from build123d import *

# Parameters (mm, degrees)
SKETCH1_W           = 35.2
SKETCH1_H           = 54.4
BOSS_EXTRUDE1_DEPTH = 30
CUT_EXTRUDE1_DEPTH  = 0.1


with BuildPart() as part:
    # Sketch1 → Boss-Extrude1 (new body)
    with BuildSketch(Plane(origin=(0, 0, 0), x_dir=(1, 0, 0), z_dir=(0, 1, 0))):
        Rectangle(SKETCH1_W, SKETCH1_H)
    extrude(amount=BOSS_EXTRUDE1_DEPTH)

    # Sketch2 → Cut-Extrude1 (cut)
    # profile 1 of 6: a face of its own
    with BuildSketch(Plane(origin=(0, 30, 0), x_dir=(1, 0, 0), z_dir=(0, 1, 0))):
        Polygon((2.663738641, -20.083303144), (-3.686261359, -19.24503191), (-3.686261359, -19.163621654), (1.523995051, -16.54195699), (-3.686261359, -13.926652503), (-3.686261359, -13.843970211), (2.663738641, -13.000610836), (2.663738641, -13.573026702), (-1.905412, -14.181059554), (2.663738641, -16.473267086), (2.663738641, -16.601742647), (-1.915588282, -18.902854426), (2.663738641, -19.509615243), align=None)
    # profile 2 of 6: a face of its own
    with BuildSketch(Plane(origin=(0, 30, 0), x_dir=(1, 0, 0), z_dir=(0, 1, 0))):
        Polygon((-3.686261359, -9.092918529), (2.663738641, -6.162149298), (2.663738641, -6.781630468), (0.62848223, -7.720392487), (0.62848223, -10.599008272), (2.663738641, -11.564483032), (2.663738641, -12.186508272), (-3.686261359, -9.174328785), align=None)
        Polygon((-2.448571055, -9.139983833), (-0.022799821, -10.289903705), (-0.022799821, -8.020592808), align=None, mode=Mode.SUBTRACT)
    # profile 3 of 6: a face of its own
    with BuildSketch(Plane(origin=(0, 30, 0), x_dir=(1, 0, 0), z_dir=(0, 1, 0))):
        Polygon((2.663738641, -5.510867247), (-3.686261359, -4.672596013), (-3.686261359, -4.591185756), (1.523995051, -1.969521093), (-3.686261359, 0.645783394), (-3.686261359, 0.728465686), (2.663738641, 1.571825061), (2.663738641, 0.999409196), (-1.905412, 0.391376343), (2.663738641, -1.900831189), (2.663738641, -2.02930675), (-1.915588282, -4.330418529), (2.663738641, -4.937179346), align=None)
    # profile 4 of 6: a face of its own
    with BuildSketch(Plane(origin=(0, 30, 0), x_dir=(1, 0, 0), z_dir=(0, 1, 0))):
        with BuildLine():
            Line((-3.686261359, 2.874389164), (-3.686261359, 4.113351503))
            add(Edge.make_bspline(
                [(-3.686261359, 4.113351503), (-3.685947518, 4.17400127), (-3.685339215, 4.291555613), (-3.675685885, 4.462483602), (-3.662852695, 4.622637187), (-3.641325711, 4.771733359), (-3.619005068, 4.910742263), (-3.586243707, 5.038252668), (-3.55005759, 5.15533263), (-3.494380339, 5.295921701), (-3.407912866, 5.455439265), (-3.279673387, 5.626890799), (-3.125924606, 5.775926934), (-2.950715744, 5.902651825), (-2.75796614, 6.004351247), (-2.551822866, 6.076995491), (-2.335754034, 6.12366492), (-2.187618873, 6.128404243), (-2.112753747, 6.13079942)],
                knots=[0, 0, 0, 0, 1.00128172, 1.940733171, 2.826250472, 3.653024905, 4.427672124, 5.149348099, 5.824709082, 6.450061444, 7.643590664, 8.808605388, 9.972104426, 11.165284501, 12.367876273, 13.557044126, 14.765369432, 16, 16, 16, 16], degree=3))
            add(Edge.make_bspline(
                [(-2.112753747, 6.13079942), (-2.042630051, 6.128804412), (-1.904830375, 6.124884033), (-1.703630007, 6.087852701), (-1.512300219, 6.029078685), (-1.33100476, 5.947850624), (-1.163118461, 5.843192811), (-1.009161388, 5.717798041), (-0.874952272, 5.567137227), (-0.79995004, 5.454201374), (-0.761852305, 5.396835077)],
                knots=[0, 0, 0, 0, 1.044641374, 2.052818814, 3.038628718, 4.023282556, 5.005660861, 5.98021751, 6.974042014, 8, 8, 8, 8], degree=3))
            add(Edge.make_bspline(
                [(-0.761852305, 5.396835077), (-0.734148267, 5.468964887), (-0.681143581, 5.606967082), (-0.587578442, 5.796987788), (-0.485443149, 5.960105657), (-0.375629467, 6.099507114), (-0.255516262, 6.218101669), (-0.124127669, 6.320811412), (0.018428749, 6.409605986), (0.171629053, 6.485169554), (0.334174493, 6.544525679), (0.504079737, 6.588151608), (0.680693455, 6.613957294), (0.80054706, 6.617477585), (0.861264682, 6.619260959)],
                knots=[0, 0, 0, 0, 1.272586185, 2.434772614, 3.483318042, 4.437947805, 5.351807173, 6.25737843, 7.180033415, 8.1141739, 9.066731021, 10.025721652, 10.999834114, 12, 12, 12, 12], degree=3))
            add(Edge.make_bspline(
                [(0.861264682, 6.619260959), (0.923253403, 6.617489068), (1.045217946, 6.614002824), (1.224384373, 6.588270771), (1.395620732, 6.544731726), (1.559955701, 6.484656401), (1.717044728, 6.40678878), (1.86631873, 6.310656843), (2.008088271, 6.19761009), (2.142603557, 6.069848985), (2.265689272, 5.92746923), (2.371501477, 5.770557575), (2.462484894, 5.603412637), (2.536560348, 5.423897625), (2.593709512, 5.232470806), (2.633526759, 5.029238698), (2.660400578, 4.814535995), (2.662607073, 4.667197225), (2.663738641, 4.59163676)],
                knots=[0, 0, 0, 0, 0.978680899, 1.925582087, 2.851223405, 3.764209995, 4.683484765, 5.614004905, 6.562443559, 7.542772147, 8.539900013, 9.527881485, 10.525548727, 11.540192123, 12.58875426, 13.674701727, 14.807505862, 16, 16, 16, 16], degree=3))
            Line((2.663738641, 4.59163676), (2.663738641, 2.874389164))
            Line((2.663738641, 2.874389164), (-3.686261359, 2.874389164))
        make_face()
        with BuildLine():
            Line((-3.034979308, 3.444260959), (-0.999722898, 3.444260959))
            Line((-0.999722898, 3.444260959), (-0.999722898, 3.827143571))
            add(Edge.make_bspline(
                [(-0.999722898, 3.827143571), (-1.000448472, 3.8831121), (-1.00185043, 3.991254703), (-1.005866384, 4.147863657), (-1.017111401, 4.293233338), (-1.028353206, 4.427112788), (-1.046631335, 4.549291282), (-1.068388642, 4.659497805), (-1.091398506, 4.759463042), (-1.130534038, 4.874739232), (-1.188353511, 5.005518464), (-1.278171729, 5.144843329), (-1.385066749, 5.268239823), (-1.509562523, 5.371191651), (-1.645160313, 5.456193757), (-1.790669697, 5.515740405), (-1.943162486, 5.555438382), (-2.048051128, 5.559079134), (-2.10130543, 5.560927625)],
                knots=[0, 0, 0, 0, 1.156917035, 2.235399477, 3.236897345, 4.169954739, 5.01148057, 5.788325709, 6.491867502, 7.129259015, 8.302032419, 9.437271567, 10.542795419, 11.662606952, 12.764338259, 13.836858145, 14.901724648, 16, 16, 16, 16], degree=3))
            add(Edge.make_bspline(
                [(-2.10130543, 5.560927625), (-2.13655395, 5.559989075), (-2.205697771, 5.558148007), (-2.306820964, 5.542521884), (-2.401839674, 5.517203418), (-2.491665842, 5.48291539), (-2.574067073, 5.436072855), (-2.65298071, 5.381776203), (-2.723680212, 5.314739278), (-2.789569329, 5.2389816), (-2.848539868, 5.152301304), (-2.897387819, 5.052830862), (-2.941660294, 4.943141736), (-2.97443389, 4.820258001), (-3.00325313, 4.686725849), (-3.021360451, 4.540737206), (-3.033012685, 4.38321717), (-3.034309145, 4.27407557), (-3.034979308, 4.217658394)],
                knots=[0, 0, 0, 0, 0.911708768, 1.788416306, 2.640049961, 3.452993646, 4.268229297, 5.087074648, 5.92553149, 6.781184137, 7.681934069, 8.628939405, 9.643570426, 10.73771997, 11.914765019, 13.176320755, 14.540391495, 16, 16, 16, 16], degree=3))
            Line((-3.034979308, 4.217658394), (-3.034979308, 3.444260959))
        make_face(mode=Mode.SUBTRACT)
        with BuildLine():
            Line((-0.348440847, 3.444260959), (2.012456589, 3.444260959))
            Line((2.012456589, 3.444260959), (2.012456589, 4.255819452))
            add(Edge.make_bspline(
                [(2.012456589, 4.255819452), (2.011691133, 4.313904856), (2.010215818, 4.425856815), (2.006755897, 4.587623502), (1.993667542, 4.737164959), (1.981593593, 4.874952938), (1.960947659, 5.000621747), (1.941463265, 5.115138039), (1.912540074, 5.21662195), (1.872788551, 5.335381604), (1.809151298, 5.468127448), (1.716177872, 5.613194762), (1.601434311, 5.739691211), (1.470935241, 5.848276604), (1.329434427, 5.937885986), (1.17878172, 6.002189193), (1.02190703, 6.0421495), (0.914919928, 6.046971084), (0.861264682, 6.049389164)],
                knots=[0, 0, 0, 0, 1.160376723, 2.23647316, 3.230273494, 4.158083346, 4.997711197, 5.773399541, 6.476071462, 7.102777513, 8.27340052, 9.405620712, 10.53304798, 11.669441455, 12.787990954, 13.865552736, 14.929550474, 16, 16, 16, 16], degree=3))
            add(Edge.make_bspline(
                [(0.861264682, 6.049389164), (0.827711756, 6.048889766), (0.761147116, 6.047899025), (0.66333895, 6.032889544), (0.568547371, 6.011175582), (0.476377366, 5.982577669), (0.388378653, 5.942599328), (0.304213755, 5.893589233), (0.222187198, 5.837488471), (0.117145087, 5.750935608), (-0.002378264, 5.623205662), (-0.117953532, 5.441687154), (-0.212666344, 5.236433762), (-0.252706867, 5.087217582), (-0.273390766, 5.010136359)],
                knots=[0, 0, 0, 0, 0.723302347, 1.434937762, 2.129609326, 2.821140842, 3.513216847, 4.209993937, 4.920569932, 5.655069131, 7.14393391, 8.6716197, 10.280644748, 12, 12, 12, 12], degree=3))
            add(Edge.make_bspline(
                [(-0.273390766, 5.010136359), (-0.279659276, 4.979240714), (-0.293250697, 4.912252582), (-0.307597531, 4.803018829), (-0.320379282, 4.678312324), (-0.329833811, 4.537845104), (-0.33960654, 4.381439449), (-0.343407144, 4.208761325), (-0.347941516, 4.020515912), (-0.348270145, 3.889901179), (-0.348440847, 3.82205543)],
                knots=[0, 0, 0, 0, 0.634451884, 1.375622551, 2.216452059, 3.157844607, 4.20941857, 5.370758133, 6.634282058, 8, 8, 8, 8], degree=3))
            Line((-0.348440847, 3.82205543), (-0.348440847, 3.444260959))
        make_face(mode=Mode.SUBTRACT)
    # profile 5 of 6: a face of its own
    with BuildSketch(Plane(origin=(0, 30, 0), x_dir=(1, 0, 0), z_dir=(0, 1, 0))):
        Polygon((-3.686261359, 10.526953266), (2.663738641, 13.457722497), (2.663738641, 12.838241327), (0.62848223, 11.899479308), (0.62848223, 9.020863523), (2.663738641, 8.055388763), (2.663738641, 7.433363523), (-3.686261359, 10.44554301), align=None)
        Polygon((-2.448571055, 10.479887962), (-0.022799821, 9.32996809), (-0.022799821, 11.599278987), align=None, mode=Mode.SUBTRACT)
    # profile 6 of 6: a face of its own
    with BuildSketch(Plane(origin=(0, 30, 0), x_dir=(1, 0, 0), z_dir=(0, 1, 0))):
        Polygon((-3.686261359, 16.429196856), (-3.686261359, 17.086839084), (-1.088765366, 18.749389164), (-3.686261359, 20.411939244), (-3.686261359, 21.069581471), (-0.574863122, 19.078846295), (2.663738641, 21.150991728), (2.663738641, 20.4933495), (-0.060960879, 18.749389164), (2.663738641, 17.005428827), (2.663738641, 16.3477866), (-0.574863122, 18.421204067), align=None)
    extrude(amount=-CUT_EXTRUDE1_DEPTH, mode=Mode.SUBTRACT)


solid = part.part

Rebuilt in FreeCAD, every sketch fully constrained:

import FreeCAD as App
import Part
import Sketcher

V = App.Vector
Q = App.Units.Quantity


def add_polygon(sketch, points):
    """Adds a closed chain of lines whose ends are joined by coincident constraints."""
    first, n = sketch.GeometryCount, len(points)
    for a, b in zip(points, points[1:] + points[:1]):
        sketch.addGeometry(Part.LineSegment(App.Vector(*a, 0), App.Vector(*b, 0)), False)
    for i in range(n):
        sketch.addConstraint(Sketcher.Constraint("Coincident", first + i, 2, first + (i + 1) % n, 1))

doc = App.newDocument("Part")
body = doc.addObject("PartDesign::Body", "Body")

# Sketch on XZ plane
sketch1 = body.newObject("Sketcher::SketchObject", "Sketch")
sketch1.AttachmentSupport = (doc.getObject("XZ_Plane"), [""])
sketch1.MapMode = "FlatFace"
add_polygon(sketch1, [(-18, -27), (-18, 27), (18, 27), (18, -27)])  # lines 0-3
sketch1.addConstraint(Sketcher.Constraint("Vertical", 0))
sketch1.addConstraint(Sketcher.Constraint("Horizontal", 1))
sketch1.addConstraint(Sketcher.Constraint("Vertical", 2))
sketch1.addConstraint(Sketcher.Constraint("Horizontal", 3))
sketch1.addConstraint(Sketcher.Constraint("Symmetric", 0, 2, 2, 2, -1, 1))
sketch1.addConstraint(Sketcher.Constraint("DistanceX", 1, 1, 1, 2, Q("35.2 mm")))
sketch1.addConstraint(Sketcher.Constraint("DistanceY", 0, 1, 0, 2, Q("54.4 mm")))
pad1 = body.newObject("PartDesign::Pad", "Pad")
pad1.Profile = sketch1
pad1.Length = 30
pad1.Reversed = True

# Sketch on XZ plane
sketch2 = body.newObject("Sketcher::SketchObject", "Sketch001")
sketch2.AttachmentSupport = (doc.getObject("XZ_Plane"), [""])
sketch2.MapMode = "FlatFace"
sketch2.AttachmentOffset = App.Placement(V(0, 0, -30), App.Rotation())
add_polygon(sketch2, [(-3.686261, 19.245032), (2.663739, 20.083303), (2.663739, 19.509615), (-1.915588, 18.902854), (2.663739, 16.601743), (2.663739, 16.473267), (-1.905412, 14.18106), (2.663739, 13.573027), (2.663739, 13.000611), (-3.686261, 13.84397), (-3.686261, 13.926653), (1.523995, 16.541957), (-3.686261, 19.163622)])  # lines 0-12
add_polygon(sketch2, [(2.663739, 6.162149), (-3.686261, 9.092919), (-3.686261, 9.174329), (2.663739, 12.186508), (2.663739, 11.564483), (0.628482, 10.599008), (0.628482, 7.720392), (2.663739, 6.78163)])  # lines 13-20
add_polygon(sketch2, [(-2.448571, 9.139984), (-0.0228, 8.020593), (-0.0228, 10.289904)])  # lines 21-23
add_polygon(sketch2, [(-3.686261, 4.672596), (2.663739, 5.510867), (2.663739, 4.937179), (-1.915588, 4.330419), (2.663739, 2.029307), (2.663739, 1.900831), (-1.905412, -0.391376), (2.663739, -0.999409), (2.663739, -1.571825), (-3.686261, -0.728466), (-3.686261, -0.645783), (1.523995, 1.969521), (-3.686261, 4.591186)])  # lines 24-36
sketch2.addGeometry(Part.LineSegment(V(-3.686261, -4.113352, 0), V(-3.686261, -2.874389, 0)), False)  # 37
sketch2.addGeometry(Part.LineSegment(V(-3.686261, -2.874389, 0), V(2.663739, -2.874389, 0)), False)  # 38
sketch2.addGeometry(Part.LineSegment(V(2.663739, -2.874389, 0), V(2.663739, -4.591637, 0)), False)  # 39
sketch2.addGeometry(Part.BSplineCurve([V(0.861265, -6.619261, 0), V(0.923253, -6.617489, 0), V(1.045218, -6.614003, 0), V(1.224384, -6.588271, 0), V(1.395621, -6.544732, 0), V(1.559956, -6.484656, 0), V(1.717045, -6.406789, 0), V(1.866319, -6.310657, 0), V(2.008088, -6.19761, 0), V(2.142604, -6.069849, 0), V(2.265689, -5.927469, 0), V(2.371501, -5.770558, 0), V(2.462485, -5.603413, 0), V(2.53656, -5.423898, 0), V(2.59371, -5.232471, 0), V(2.633527, -5.029239, 0), V(2.660401, -4.814536, 0), V(2.662607, -4.667197, 0), V(2.663739, -4.591637, 0)], [4, 1, 1, 1, 1, 1, 1, 1, 1, 1, 1, 1, 1, 1, 1, 1, 4], [0, 0.978680899, 1.925582087, 2.851223405, 3.764209995, 4.683484765, 5.614004905, 6.562443559, 7.542772147, 8.539900013, 9.527881485, 10.525548727, 11.540192123, 12.58875426, 13.674701727, 14.807505862, 16], False, 3, [1, 1, 1, 1, 1, 1, 1, 1, 1, 1, 1, 1, 1, 1, 1, 1, 1, 1, 1], False), False)  # 40
sketch2.addGeometry(Part.BSplineCurve([V(-0.761852, -5.396835, 0), V(-0.734148, -5.468965, 0), V(-0.681144, -5.606967, 0), V(-0.587578, -5.796988, 0), V(-0.485443, -5.960106, 0), V(-0.375629, -6.099507, 0), V(-0.255516, -6.218102, 0), V(-0.124128, -6.320811, 0), V(0.018429, -6.409606, 0), V(0.171629, -6.48517, 0), V(0.334174, -6.544526, 0), V(0.50408, -6.588152, 0), V(0.680693, -6.613957, 0), V(0.800547, -6.617478, 0), V(0.861265, -6.619261, 0)], [4, 1, 1, 1, 1, 1, 1, 1, 1, 1, 1, 1, 4], [0, 1.272586185, 2.434772614, 3.483318042, 4.437947805, 5.351807173, 6.25737843, 7.180033415, 8.1141739, 9.066731021, 10.025721652, 10.999834114, 12], False, 3, [1, 1, 1, 1, 1, 1, 1, 1, 1, 1, 1, 1, 1, 1, 1], False), False)  # 41
sketch2.addGeometry(Part.BSplineCurve([V(-2.112754, -6.130799, 0), V(-2.04263, -6.128804, 0), V(-1.90483, -6.124884, 0), V(-1.70363, -6.087853, 0), V(-1.5123, -6.029079, 0), V(-1.331005, -5.947851, 0), V(-1.163118, -5.843193, 0), V(-1.009161, -5.717798, 0), V(-0.874952, -5.567137, 0), V(-0.79995, -5.454201, 0), V(-0.761852, -5.396835, 0)], [4, 1, 1, 1, 1, 1, 1, 1, 4], [0, 1.044641374, 2.052818814, 3.038628718, 4.023282556, 5.005660861, 5.98021751, 6.974042014, 8], False, 3, [1, 1, 1, 1, 1, 1, 1, 1, 1, 1, 1], False), False)  # 42
sketch2.addGeometry(Part.BSplineCurve([V(-3.686261, -4.113352, 0), V(-3.685948, -4.174001, 0), V(-3.685339, -4.291556, 0), V(-3.675686, -4.462484, 0), V(-3.662853, -4.622637, 0), V(-3.641326, -4.771733, 0), V(-3.619005, -4.910742, 0), V(-3.586244, -5.038253, 0), V(-3.550058, -5.155333, 0), V(-3.49438, -5.295922, 0), V(-3.407913, -5.455439, 0), V(-3.279673, -5.626891, 0), V(-3.125925, -5.775927, 0), V(-2.950716, -5.902652, 0), V(-2.757966, -6.004351, 0), V(-2.551823, -6.076995, 0), V(-2.335754, -6.123665, 0), V(-2.187619, -6.128404, 0), V(-2.112754, -6.130799, 0)], [4, 1, 1, 1, 1, 1, 1, 1, 1, 1, 1, 1, 1, 1, 1, 1, 4], [0, 1.00128172, 1.940733171, 2.826250472, 3.653024905, 4.427672124, 5.149348099, 5.824709082, 6.450061444, 7.643590664, 8.808605388, 9.972104426, 11.165284501, 12.367876273, 13.557044126, 14.765369432, 16], False, 3, [1, 1, 1, 1, 1, 1, 1, 1, 1, 1, 1, 1, 1, 1, 1, 1, 1, 1, 1], False), False)  # 43
sketch2.addGeometry(Part.LineSegment(V(-3.034979, -3.444261, 0), V(-3.034979, -4.217658, 0)), False)  # 44
sketch2.addGeometry(Part.BSplineCurve([V(-2.101305, -5.560928, 0), V(-2.136554, -5.559989, 0), V(-2.205698, -5.558148, 0), V(-2.306821, -5.542522, 0), V(-2.40184, -5.517203, 0), V(-2.491666, -5.482915, 0), V(-2.574067, -5.436073, 0), V(-2.652981, -5.381776, 0), V(-2.72368, -5.314739, 0), V(-2.789569, -5.238982, 0), V(-2.84854, -5.152301, 0), V(-2.897388, -5.052831, 0), V(-2.94166, -4.943142, 0), V(-2.974434, -4.820258, 0), V(-3.003253, -4.686726, 0), V(-3.02136, -4.540737, 0), V(-3.033013, -4.383217, 0), V(-3.034309, -4.274076, 0), V(-3.034979, -4.217658, 0)], [4, 1, 1, 1, 1, 1, 1, 1, 1, 1, 1, 1, 1, 1, 1, 1, 4], [0, 0.911708768, 1.788416306, 2.640049961, 3.452993646, 4.268229297, 5.087074648, 5.92553149, 6.781184137, 7.681934069, 8.628939405, 9.643570426, 10.73771997, 11.914765019, 13.176320755, 14.540391495, 16], False, 3, [1, 1, 1, 1, 1, 1, 1, 1, 1, 1, 1, 1, 1, 1, 1, 1, 1, 1, 1], False), False)  # 45
sketch2.addGeometry(Part.BSplineCurve([V(-0.999723, -3.827144, 0), V(-1.000448, -3.883112, 0), V(-1.00185, -3.991255, 0), V(-1.005866, -4.147864, 0), V(-1.017111, -4.293233, 0), V(-1.028353, -4.427113, 0), V(-1.046631, -4.549291, 0), V(-1.068389, -4.659498, 0), V(-1.091399, -4.759463, 0), V(-1.130534, -4.874739, 0), V(-1.188354, -5.005518, 0), V(-1.278172, -5.144843, 0), V(-1.385067, -5.26824, 0), V(-1.509563, -5.371192, 0), V(-1.64516, -5.456194, 0), V(-1.79067, -5.51574, 0), V(-1.943162, -5.555438, 0), V(-2.048051, -5.559079, 0), V(-2.101305, -5.560928, 0)], [4, 1, 1, 1, 1, 1, 1, 1, 1, 1, 1, 1, 1, 1, 1, 1, 4], [0, 1.156917035, 2.235399477, 3.236897345, 4.169954739, 5.01148057, 5.788325709, 6.491867502, 7.129259015, 8.302032419, 9.437271567, 10.542795419, 11.662606952, 12.764338259, 13.836858145, 14.901724648, 16], False, 3, [1, 1, 1, 1, 1, 1, 1, 1, 1, 1, 1, 1, 1, 1, 1, 1, 1, 1, 1], False), False)  # 46
sketch2.addGeometry(Part.LineSegment(V(-0.999723, -3.827144, 0), V(-0.999723, -3.444261, 0)), False)  # 47
sketch2.addGeometry(Part.LineSegment(V(-0.999723, -3.444261, 0), V(-3.034979, -3.444261, 0)), False)  # 48
sketch2.addGeometry(Part.LineSegment(V(-0.348441, -3.444261, 0), V(-0.348441, -3.822055, 0)), False)  # 49
sketch2.addGeometry(Part.BSplineCurve([V(-0.273391, -5.010136, 0), V(-0.279659, -4.979241, 0), V(-0.293251, -4.912253, 0), V(-0.307598, -4.803019, 0), V(-0.320379, -4.678312, 0), V(-0.329834, -4.537845, 0), V(-0.339607, -4.381439, 0), V(-0.343407, -4.208761, 0), V(-0.347942, -4.020516, 0), V(-0.34827, -3.889901, 0), V(-0.348441, -3.822055, 0)], [4, 1, 1, 1, 1, 1, 1, 1, 4], [0, 0.634451884, 1.375622551, 2.216452059, 3.157844607, 4.20941857, 5.370758133, 6.634282058, 8], False, 3, [1, 1, 1, 1, 1, 1, 1, 1, 1, 1, 1], False), False)  # 50
sketch2.addGeometry(Part.BSplineCurve([V(0.861265, -6.049389, 0), V(0.827712, -6.04889, 0), V(0.761147, -6.047899, 0), V(0.663339, -6.03289, 0), V(0.568547, -6.011176, 0), V(0.476377, -5.982578, 0), V(0.388379, -5.942599, 0), V(0.304214, -5.893589, 0), V(0.222187, -5.837488, 0), V(0.117145, -5.750936, 0), V(-0.002378, -5.623206, 0), V(-0.117954, -5.441687, 0), V(-0.212666, -5.236434, 0), V(-0.252707, -5.087218, 0), V(-0.273391, -5.010136, 0)], [4, 1, 1, 1, 1, 1, 1, 1, 1, 1, 1, 1, 4], [0, 0.723302347, 1.434937762, 2.129609326, 2.821140842, 3.513216847, 4.209993937, 4.920569932, 5.655069131, 7.14393391, 8.6716197, 10.280644748, 12], False, 3, [1, 1, 1, 1, 1, 1, 1, 1, 1, 1, 1, 1, 1, 1, 1], False), False)  # 51
sketch2.addGeometry(Part.BSplineCurve([V(2.012457, -4.255819, 0), V(2.011691, -4.313905, 0), V(2.010216, -4.425857, 0), V(2.006756, -4.587624, 0), V(1.993668, -4.737165, 0), V(1.981594, -4.874953, 0), V(1.960948, -5.000622, 0), V(1.941463, -5.115138, 0), V(1.91254, -5.216622, 0), V(1.872789, -5.335382, 0), V(1.809151, -5.468127, 0), V(1.716178, -5.613195, 0), V(1.601434, -5.739691, 0), V(1.470935, -5.848277, 0), V(1.329434, -5.937886, 0), V(1.178782, -6.002189, 0), V(1.021907, -6.042149, 0), V(0.91492, -6.046971, 0), V(0.861265, -6.049389, 0)], [4, 1, 1, 1, 1, 1, 1, 1, 1, 1, 1, 1, 1, 1, 1, 1, 4], [0, 1.160376723, 2.23647316, 3.230273494, 4.158083346, 4.997711197, 5.773399541, 6.476071462, 7.102777513, 8.27340052, 9.405620712, 10.53304798, 11.669441455, 12.787990954, 13.865552736, 14.929550474, 16], False, 3, [1, 1, 1, 1, 1, 1, 1, 1, 1, 1, 1, 1, 1, 1, 1, 1, 1, 1, 1], False), False)  # 52
sketch2.addGeometry(Part.LineSegment(V(2.012457, -4.255819, 0), V(2.012457, -3.444261, 0)), False)  # 53
sketch2.addGeometry(Part.LineSegment(V(2.012457, -3.444261, 0), V(-0.348441, -3.444261, 0)), False)  # 54
add_polygon(sketch2, [(2.663739, -13.457722), (-3.686261, -10.526953), (-3.686261, -10.445543), (2.663739, -7.433364), (2.663739, -8.055389), (0.628482, -9.020864), (0.628482, -11.899479), (2.663739, -12.838241)])  # lines 55-62
add_polygon(sketch2, [(-2.448571, -10.479888), (-0.0228, -11.599279), (-0.0228, -9.329968)])  # lines 63-65
add_polygon(sketch2, [(-3.686261, -17.086839), (-3.686261, -16.429197), (-0.574863, -18.421204), (2.663739, -16.347787), (2.663739, -17.005429), (-0.060961, -18.749389), (2.663739, -20.49335), (2.663739, -21.150992), (-0.574863, -19.078846), (-3.686261, -21.069581), (-3.686261, -20.411939), (-1.088765, -18.749389)])  # lines 66-77
sketch2.addConstraint(Sketcher.Constraint("Block", 40))
sketch2.addConstraint(Sketcher.Constraint("Block", 41))
sketch2.addConstraint(Sketcher.Constraint("Block", 42))
sketch2.addConstraint(Sketcher.Constraint("Block", 43))
sketch2.addConstraint(Sketcher.Constraint("Block", 45))
sketch2.addConstraint(Sketcher.Constraint("Block", 46))
sketch2.addConstraint(Sketcher.Constraint("Block", 50))
sketch2.addConstraint(Sketcher.Constraint("Block", 51))
sketch2.addConstraint(Sketcher.Constraint("Block", 52))
sketch2.addConstraint(Sketcher.Constraint("Coincident", 37, 2, 38, 1))
sketch2.addConstraint(Sketcher.Constraint("Coincident", 38, 2, 39, 1))
sketch2.addConstraint(Sketcher.Constraint("Coincident", 39, 2, 40, 2))
sketch2.addConstraint(Sketcher.Constraint("Coincident", 43, 1, 37, 1))
sketch2.addConstraint(Sketcher.Constraint("Coincident", 44, 2, 45, 2))
sketch2.addConstraint(Sketcher.Constraint("Coincident", 46, 1, 47, 1))
sketch2.addConstraint(Sketcher.Constraint("Coincident", 47, 2, 48, 1))
sketch2.addConstraint(Sketcher.Constraint("Coincident", 48, 2, 44, 1))
sketch2.addConstraint(Sketcher.Constraint("Coincident", 49, 2, 50, 2))
sketch2.addConstraint(Sketcher.Constraint("Coincident", 52, 1, 53, 1))
sketch2.addConstraint(Sketcher.Constraint("Coincident", 53, 2, 54, 1))
sketch2.addConstraint(Sketcher.Constraint("Coincident", 54, 2, 49, 1))
sketch2.addConstraint(Sketcher.Constraint("Vertical", 1))
sketch2.addConstraint(Sketcher.Constraint("Vertical", 4))
sketch2.addConstraint(Sketcher.Constraint("Vertical", 7))
sketch2.addConstraint(Sketcher.Constraint("Vertical", 9))
sketch2.addConstraint(Sketcher.Constraint("Vertical", 12))
sketch2.addConstraint(Sketcher.Constraint("Vertical", 14))
sketch2.addConstraint(Sketcher.Constraint("Vertical", 16))
sketch2.addConstraint(Sketcher.Constraint("Vertical", 18))
sketch2.addConstraint(Sketcher.Constraint("Vertical", 20))
sketch2.addConstraint(Sketcher.Constraint("Vertical", 22))
sketch2.addConstraint(Sketcher.Constraint("Vertical", 25))
sketch2.addConstraint(Sketcher.Constraint("Vertical", 28))
sketch2.addConstraint(Sketcher.Constraint("Vertical", 31))
sketch2.addConstraint(Sketcher.Constraint("Vertical", 33))
sketch2.addConstraint(Sketcher.Constraint("Vertical", 36))
sketch2.addConstraint(Sketcher.Constraint("Vertical", 37))
sketch2.addConstraint(Sketcher.Constraint("Horizontal", 38))
sketch2.addConstraint(Sketcher.Constraint("Vertical", 39))
sketch2.addConstraint(Sketcher.Constraint("Vertical", 44))
sketch2.addConstraint(Sketcher.Constraint("Vertical", 47))
sketch2.addConstraint(Sketcher.Constraint("Horizontal", 48))
sketch2.addConstraint(Sketcher.Constraint("Vertical", 49))
sketch2.addConstraint(Sketcher.Constraint("Vertical", 53))
sketch2.addConstraint(Sketcher.Constraint("Horizontal", 54))
sketch2.addConstraint(Sketcher.Constraint("Vertical", 56))
sketch2.addConstraint(Sketcher.Constraint("Vertical", 58))
sketch2.addConstraint(Sketcher.Constraint("Vertical", 60))
sketch2.addConstraint(Sketcher.Constraint("Vertical", 62))
sketch2.addConstraint(Sketcher.Constraint("Vertical", 64))
sketch2.addConstraint(Sketcher.Constraint("Vertical", 66))
sketch2.addConstraint(Sketcher.Constraint("Vertical", 69))
sketch2.addConstraint(Sketcher.Constraint("Vertical", 72))
sketch2.addConstraint(Sketcher.Constraint("Vertical", 75))
sketch2.addConstraint(Sketcher.Constraint("Distance", 76, Q("3.084 mm")))
sketch2.addConstraint(Sketcher.Constraint("Distance", 77, Q("3.084 mm")))
sketch2.addConstraint(Sketcher.Constraint("Distance", 10, Q("5.829802 mm")))
sketch2.addConstraint(Sketcher.Constraint("Distance", 34, Q("5.829802 mm")))
sketch2.addConstraint(Sketcher.Constraint("DistanceY", 12, 1, 12, 2, Q("0.08141 mm")))
sketch2.addConstraint(Sketcher.Constraint("DistanceY", 14, 1, 14, 2, Q("0.08141 mm")))
sketch2.addConstraint(Sketcher.Constraint("DistanceY", 20, 2, 20, 1, Q("0.619481 mm")))
sketch2.addConstraint(Sketcher.Constraint("DistanceY", 22, 1, 22, 2, Q("2.269311 mm")))
sketch2.addConstraint(Sketcher.Constraint("DistanceY", 36, 1, 36, 2, Q("0.08141 mm")))
sketch2.addConstraint(Sketcher.Constraint("DistanceY", 53, 1, 53, 2, Q("0.811558 mm")))
sketch2.addConstraint(Sketcher.Constraint("DistanceY", 56, 1, 56, 2, Q("0.08141 mm")))
sketch2.addConstraint(Sketcher.Constraint("DistanceY", 62, 2, 62, 1, Q("0.619481 mm")))
sketch2.addConstraint(Sketcher.Constraint("DistanceY", 64, 1, 64, 2, Q("2.269311 mm")))
sketch2.addConstraint(Sketcher.Constraint("DistanceX", 21, 2, -1, 1, Q("0.0228 mm")))
sketch2.addConstraint(Sketcher.Constraint("DistanceX", 63, 2, -1, 1, Q("0.0228 mm")))
sketch2.addConstraint(Sketcher.Constraint("Distance", 0, Q("6.405092 mm")))
sketch2.addConstraint(Sketcher.Constraint("Distance", 2, Q("4.61935 mm")))
sketch2.addConstraint(Sketcher.Constraint("Distance", 6, Q("4.60943 mm")))
sketch2.addConstraint(Sketcher.Constraint("Distance", 8, Q("6.40576 mm")))
sketch2.addConstraint(Sketcher.Constraint("Distance", 15, Q("7.028209 mm")))
sketch2.addConstraint(Sketcher.Constraint("Distance", 21, Q("2.671592 mm")))
sketch2.addConstraint(Sketcher.Constraint("Distance", 24, Q("6.405092 mm")))
sketch2.addConstraint(Sketcher.Constraint("Distance", 26, Q("4.61935 mm")))
sketch2.addConstraint(Sketcher.Constraint("Distance", 30, Q("4.60943 mm")))
sketch2.addConstraint(Sketcher.Constraint("Distance", 32, Q("6.40576 mm")))
sketch2.addConstraint(Sketcher.Constraint("Distance", 57, Q("7.028209 mm")))
sketch2.addConstraint(Sketcher.Constraint("Distance", 63, Q("2.671592 mm")))
sketch2.addConstraint(Sketcher.Constraint("Distance", 67, Q("3.694441 mm")))
sketch2.addConstraint(Sketcher.Constraint("Distance", 73, Q("3.844779 mm")))
sketch2.addConstraint(Sketcher.Constraint("DistanceY", 1, 2, 1, 1, Q("0.573688 mm")))
sketch2.addConstraint(Sketcher.Constraint("DistanceY", 4, 2, 4, 1, Q("0.128476 mm")))
sketch2.addConstraint(Sketcher.Constraint("DistanceY", 7, 2, 7, 1, Q("0.572416 mm")))
sketch2.addConstraint(Sketcher.Constraint("DistanceY", 9, 1, 9, 2, Q("0.082682 mm")))
sketch2.addConstraint(Sketcher.Constraint("DistanceY", 16, 2, 16, 1, Q("0.622025 mm")))
sketch2.addConstraint(Sketcher.Constraint("DistanceY", 18, 2, 18, 1, Q("2.878616 mm")))
sketch2.addConstraint(Sketcher.Constraint("DistanceY", 25, 2, 25, 1, Q("0.573688 mm")))
sketch2.addConstraint(Sketcher.Constraint("DistanceY", 28, 2, 28, 1, Q("0.128476 mm")))
sketch2.addConstraint(Sketcher.Constraint("DistanceY", 31, 2, 31, 1, Q("0.572416 mm")))
sketch2.addConstraint(Sketcher.Constraint("DistanceY", 33, 1, 33, 2, Q("0.082682 mm")))
sketch2.addConstraint(Sketcher.Constraint("DistanceY", 37, 1, 37, 2, Q("1.238962 mm")))
sketch2.addConstraint(Sketcher.Constraint("DistanceY", 44, 2, 44, 1, Q("0.773397 mm")))
sketch2.addConstraint(Sketcher.Constraint("DistanceY", 58, 2, 58, 1, Q("0.622025 mm")))
sketch2.addConstraint(Sketcher.Constraint("DistanceY", 60, 2, 60, 1, Q("2.878616 mm")))
sketch2.addConstraint(Sketcher.Constraint("DistanceY", 66, 1, 66, 2, Q("0.657642 mm")))
sketch2.addConstraint(Sketcher.Constraint("DistanceY", 69, 2, 69, 1, Q("0.657642 mm")))
sketch2.addConstraint(Sketcher.Constraint("DistanceY", 72, 2, 72, 1, Q("0.657642 mm")))
sketch2.addConstraint(Sketcher.Constraint("DistanceY", 75, 1, 75, 2, Q("0.657642 mm")))
sketch2.addConstraint(Sketcher.Constraint("DistanceX", -1, 1, 0, 2, Q("2.663739 mm")))
sketch2.addConstraint(Sketcher.Constraint("DistanceX", 2, 2, -1, 1, Q("1.915588 mm")))
sketch2.addConstraint(Sketcher.Constraint("DistanceX", -1, 1, 3, 2, Q("2.663739 mm")))
sketch2.addConstraint(Sketcher.Constraint("DistanceY", -1, 1, 5, 2, Q("14.18106 mm")))
sketch2.addConstraint(Sketcher.Constraint("DistanceX", -1, 1, 6, 2, Q("2.663739 mm")))
sketch2.addConstraint(Sketcher.Constraint("DistanceY", -1, 1, 7, 2, Q("13.000611 mm")))
sketch2.addConstraint(Sketcher.Constraint("DistanceX", 8, 2, -1, 1, Q("3.686261 mm")))
sketch2.addConstraint(Sketcher.Constraint("DistanceX", 11, 2, -1, 1, Q("3.686261 mm")))
sketch2.addConstraint(Sketcher.Constraint("DistanceY", -1, 1, 11, 2, Q("19.163622 mm")))
sketch2.addConstraint(Sketcher.Constraint("DistanceX", 13, 2, -1, 1, Q("3.686261 mm")))
sketch2.addConstraint(Sketcher.Constraint("DistanceY", -1, 1, 13, 2, Q("9.092919 mm")))
sketch2.addConstraint(Sketcher.Constraint("DistanceX", -1, 1, 15, 2, Q("2.663739 mm")))
sketch2.addConstraint(Sketcher.Constraint("DistanceY", -1, 1, 17, 2, Q("10.599008 mm")))
sketch2.addConstraint(Sketcher.Constraint("DistanceX", -1, 1, 19, 2, Q("2.663739 mm")))
sketch2.addConstraint(Sketcher.Constraint("DistanceY", -1, 1, 19, 2, Q("6.78163 mm")))
sketch2.addConstraint(Sketcher.Constraint("DistanceX", 23, 2, -1, 1, Q("2.448571 mm")))
sketch2.addConstraint(Sketcher.Constraint("DistanceX", -1, 1, 24, 2, Q("2.663739 mm")))
sketch2.addConstraint(Sketcher.Constraint("DistanceY", -1, 1, 25, 2, Q("4.937179 mm")))
sketch2.addConstraint(Sketcher.Constraint("DistanceX", 26, 2, -1, 1, Q("1.915588 mm")))
sketch2.addConstraint(Sketcher.Constraint("DistanceX", -1, 1, 27, 2, Q("2.663739 mm")))
sketch2.addConstraint(Sketcher.Constraint("DistanceY", -1, 1, 28, 2, Q("1.900831 mm")))
sketch2.addConstraint(Sketcher.Constraint("DistanceX", -1, 1, 30, 2, Q("2.663739 mm")))
sketch2.addConstraint(Sketcher.Constraint("DistanceY", 30, 2, -1, 1, Q("0.999409 mm")))
sketch2.addConstraint(Sketcher.Constraint("DistanceX", 32, 2, -1, 1, Q("3.686261 mm")))
sketch2.addConstraint(Sketcher.Constraint("DistanceY", -1, 1, 34, 2, Q("1.969521 mm")))
sketch2.addConstraint(Sketcher.Constraint("DistanceX", 35, 2, -1, 1, Q("3.686261 mm")))
sketch2.addConstraint(Sketcher.Constraint("DistanceX", 55, 2, -1, 1, Q("3.686261 mm")))
sketch2.addConstraint(Sketcher.Constraint("DistanceX", -1, 1, 57, 2, Q("2.663739 mm")))
sketch2.addConstraint(Sketcher.Constraint("DistanceY", 58, 2, -1, 1, Q("8.055389 mm")))
sketch2.addConstraint(Sketcher.Constraint("DistanceY", 60, 2, -1, 1, Q("11.899479 mm")))
sketch2.addConstraint(Sketcher.Constraint("DistanceX", -1, 1, 61, 2, Q("2.663739 mm")))
sketch2.addConstraint(Sketcher.Constraint("DistanceY", 61, 2, -1, 1, Q("12.838241 mm")))
sketch2.addConstraint(Sketcher.Constraint("DistanceY", 63, 2, -1, 1, Q("11.599279 mm")))
sketch2.addConstraint(Sketcher.Constraint("DistanceX", 65, 2, -1, 1, Q("2.448571 mm")))
sketch2.addConstraint(Sketcher.Constraint("DistanceX", 66, 2, -1, 1, Q("3.686261 mm")))
sketch2.addConstraint(Sketcher.Constraint("DistanceX", -1, 1, 68, 2, Q("2.663739 mm")))
sketch2.addConstraint(Sketcher.Constraint("DistanceY", 69, 2, -1, 1, Q("17.005429 mm")))
sketch2.addConstraint(Sketcher.Constraint("DistanceX", 70, 2, -1, 1, Q("0.060961 mm")))
sketch2.addConstraint(Sketcher.Constraint("DistanceY", 70, 2, -1, 1, Q("18.749389 mm")))
sketch2.addConstraint(Sketcher.Constraint("DistanceX", -1, 1, 71, 2, Q("2.663739 mm")))
sketch2.addConstraint(Sketcher.Constraint("DistanceY", 71, 2, -1, 1, Q("20.49335 mm")))
sketch2.addConstraint(Sketcher.Constraint("DistanceX", 74, 2, -1, 1, Q("3.686261 mm")))
sketch2.addConstraint(Sketcher.Constraint("DistanceY", 74, 2, -1, 1, Q("21.069581 mm")))
sketch2.addConstraint(Sketcher.Constraint("DistanceY", 76, 2, -1, 1, Q("18.749389 mm")))
sketch2.addConstraint(Sketcher.Constraint("Distance", 3, Q("5.124973 mm")))
sketch2.addConstraint(Sketcher.Constraint("Distance", 11, Q("5.832658 mm")))
sketch2.addConstraint(Sketcher.Constraint("Distance", 17, Q("2.252645 mm")))
sketch2.addConstraint(Sketcher.Constraint("Distance", 29, Q("5.111884 mm")))
sketch2.addConstraint(Sketcher.Constraint("Distance", 59, Q("2.252645 mm")))
sketch2.addConstraint(Sketcher.Constraint("Distance", 68, Q("3.845465 mm")))
sketch2.addConstraint(Sketcher.Constraint("Distance", 74, Q("3.693755 mm")))
sketch2.addConstraint(Sketcher.Constraint("DistanceY", -1, 1, 21, 2, Q("8.020593 mm")))
pocket1 = body.newObject("PartDesign::Pocket", "Pocket")
pocket1.Profile = sketch2
pocket1.Length = 0.1
pocket1.Reversed = True

doc.recompute()
